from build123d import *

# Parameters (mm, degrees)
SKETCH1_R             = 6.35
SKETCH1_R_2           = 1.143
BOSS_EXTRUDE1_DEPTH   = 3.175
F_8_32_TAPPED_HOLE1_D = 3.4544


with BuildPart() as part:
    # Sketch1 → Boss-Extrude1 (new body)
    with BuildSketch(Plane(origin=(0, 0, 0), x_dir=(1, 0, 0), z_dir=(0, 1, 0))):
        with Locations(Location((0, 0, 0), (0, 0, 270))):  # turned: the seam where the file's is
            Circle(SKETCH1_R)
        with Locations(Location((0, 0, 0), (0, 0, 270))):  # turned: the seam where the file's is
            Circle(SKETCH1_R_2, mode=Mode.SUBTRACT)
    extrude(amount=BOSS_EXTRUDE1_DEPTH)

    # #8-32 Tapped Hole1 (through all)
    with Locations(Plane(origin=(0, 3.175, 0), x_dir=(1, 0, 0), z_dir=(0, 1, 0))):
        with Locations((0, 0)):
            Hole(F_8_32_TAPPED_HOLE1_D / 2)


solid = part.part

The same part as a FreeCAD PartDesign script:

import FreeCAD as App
import Part
import Sketcher
from FreeCAD import Vector
Q = App.Units.Quantity

doc = App.newDocument("Part")
body = doc.addObject("PartDesign::Body", "Body")

sketch1 = body.newObject("Sketcher::SketchObject", "Sketch")
sketch1.AttachmentSupport = (doc.getObject("XZ_Plane"), [""])
sketch1.MapMode = "FlatFace"
sketch1.addGeometry(Part.Circle(Vector(0, 0, 0), Vector(0, 0, 1), 6.3), False)
sketch1.addGeometry(Part.Circle(Vector(0, 0, 0), Vector(0, 0, 1), 1.1), False)
sketch1.addConstraint(Sketcher.Constraint("Coincident", 0, 3, -1, 1))
sketch1.addConstraint(Sketcher.Constraint("Coincident", 1, 3, -1, 1))
sketch1.addConstraint(Sketcher.Constraint("Diameter", 0, Q("0.5 in")))
sketch1.addConstraint(Sketcher.Constraint("Diameter", 1, Q("0.09 in")))
pad1 = body.newObject("PartDesign::Pad", "Pad")
pad1.Profile = sketch1
pad1.Length = Q("0.125 in")
pad1.Reversed = True

sketch2 = body.newObject("Sketcher::SketchObject", "Sketch001")
sketch2.AttachmentSupport = (doc.getObject("XZ_Plane"), [""])
sketch2.MapMode = "FlatFace"
sketch2.AttachmentOffset = App.Placement(Vector(0, 0, -0.125 * 25.4), App.Rotation())
sketch2.addGeometry(Part.Circle(Vector(0, 0, 0), Vector(0, 0, 1), 1.7), False)
sketch2.addConstraint(Sketcher.Constraint("Coincident", 0, 3, -1, 1))
sketch2.addConstraint(Sketcher.Constraint("Diameter", 0, Q("0.136 in")))
doc.recompute()
hole = body.newObject("PartDesign::Hole", "Hole")
hole.Profile = sketch2
hole.ThreadType = "None"
hole.Diameter = Q("0.136 in")
hole.DepthType = "ThroughAll"
hole.Reversed = True

doc.recompute()
